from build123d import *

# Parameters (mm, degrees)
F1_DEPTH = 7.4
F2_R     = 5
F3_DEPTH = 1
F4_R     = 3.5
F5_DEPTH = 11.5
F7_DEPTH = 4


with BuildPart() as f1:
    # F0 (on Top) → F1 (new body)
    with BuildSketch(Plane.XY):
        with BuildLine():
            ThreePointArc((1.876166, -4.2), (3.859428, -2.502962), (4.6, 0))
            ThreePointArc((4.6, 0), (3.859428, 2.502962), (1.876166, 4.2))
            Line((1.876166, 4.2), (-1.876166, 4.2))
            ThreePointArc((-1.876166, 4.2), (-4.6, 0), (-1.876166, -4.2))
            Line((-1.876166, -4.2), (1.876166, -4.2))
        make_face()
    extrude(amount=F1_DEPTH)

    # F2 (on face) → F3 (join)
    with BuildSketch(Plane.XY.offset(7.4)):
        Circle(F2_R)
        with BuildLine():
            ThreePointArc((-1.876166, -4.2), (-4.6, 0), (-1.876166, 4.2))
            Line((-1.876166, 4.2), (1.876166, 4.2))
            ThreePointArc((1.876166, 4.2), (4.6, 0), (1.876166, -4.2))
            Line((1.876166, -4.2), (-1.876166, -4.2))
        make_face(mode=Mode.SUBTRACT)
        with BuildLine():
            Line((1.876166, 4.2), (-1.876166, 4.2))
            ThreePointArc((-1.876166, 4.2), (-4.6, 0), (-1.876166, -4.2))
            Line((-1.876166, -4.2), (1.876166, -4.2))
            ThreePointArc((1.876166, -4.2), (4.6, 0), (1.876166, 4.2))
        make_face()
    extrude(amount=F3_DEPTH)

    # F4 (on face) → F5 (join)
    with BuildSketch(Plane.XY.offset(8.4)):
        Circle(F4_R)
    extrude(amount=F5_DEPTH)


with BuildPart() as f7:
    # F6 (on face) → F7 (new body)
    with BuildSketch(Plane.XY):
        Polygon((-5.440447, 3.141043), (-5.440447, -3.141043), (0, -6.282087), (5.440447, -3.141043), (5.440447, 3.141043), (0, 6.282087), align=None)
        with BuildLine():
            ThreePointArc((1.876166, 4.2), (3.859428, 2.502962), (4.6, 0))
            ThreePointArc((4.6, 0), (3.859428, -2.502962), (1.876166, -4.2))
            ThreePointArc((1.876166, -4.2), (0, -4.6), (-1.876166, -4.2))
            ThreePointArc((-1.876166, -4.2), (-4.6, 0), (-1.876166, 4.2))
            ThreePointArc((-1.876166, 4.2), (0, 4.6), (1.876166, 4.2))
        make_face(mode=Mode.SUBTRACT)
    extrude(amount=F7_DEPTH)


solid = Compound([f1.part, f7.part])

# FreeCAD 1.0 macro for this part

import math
import FreeCAD as App
import Part
import Sketcher
Q = App.Units.Quantity

doc = App.newDocument("Part")
body = doc.addObject("PartDesign::Body", "Body")

sketch1 = doc.addObject("Sketcher::SketchObject", "Sketch")
body.addObject(sketch1)
sketch1.AttachmentSupport = (doc.XY_Plane, [""])
sketch1.MapMode = "FlatFace"
sketch1.addGeometry(Part.ArcOfCircle(Part.Circle(App.Vector(0, 0, 0), App.Vector(0, 0, 1), 4.6), math.radians(-66), math.radians(0)), False)
sketch1.addGeometry(Part.ArcOfCircle(Part.Circle(App.Vector(0, 0, 0), App.Vector(0, 0, 1), 4.6), math.radians(0), math.radians(66)), False)
sketch1.addGeometry(Part.LineSegment(App.Vector(1.9, 4.2, 0), App.Vector(-1.9, 4.2, 0)), False)
sketch1.addGeometry(Part.ArcOfCircle(Part.Circle(App.Vector(0, 0, 0), App.Vector(0, 0, 1), 4.6), math.radians(114), math.radians(246)), False)
sketch1.addGeometry(Part.LineSegment(App.Vector(-1.9, -4.2, 0), App.Vector(1.9, -4.2, 0)), False)
sketch1.addConstraint(Sketcher.Constraint("Tangent", 0, 2, 1, 1))
sketch1.addConstraint(Sketcher.Constraint("Coincident", 1, 2, 2, 1))
sketch1.addConstraint(Sketcher.Constraint("Coincident", 2, 2, 3, 1))
sketch1.addConstraint(Sketcher.Constraint("Coincident", 3, 2, 4, 1))
sketch1.addConstraint(Sketcher.Constraint("Coincident", 4, 2, 0, 1))
sketch1.addConstraint(Sketcher.Constraint("Horizontal", 2))
sketch1.addConstraint(Sketcher.Constraint("Horizontal", 4))
sketch1.addConstraint(Sketcher.Constraint("Coincident", 0, 3, -1, 1))
sketch1.addConstraint(Sketcher.Constraint("Coincident", 3, 3, -1, 1))
sketch1.addConstraint(Sketcher.Constraint("Equal", 0, 1))
sketch1.addConstraint(Sketcher.Constraint("Symmetric", 1, 2, 3, 2, -1, 1))
sketch1.addConstraint(Sketcher.Constraint("PointOnObject", 0, 2, -1))
sketch1.addConstraint(Sketcher.Constraint("Radius", 3, Q("4.6 mm")))
sketch1.addConstraint(Sketcher.Constraint("DistanceY", -1, 1, 1, 2, Q("4.2 mm")))
pad1 = doc.addObject("PartDesign::Pad", "Pad")
body.addObject(pad1)
pad1.Profile = sketch1
pad1.Length = 7.4

sketch2 = doc.addObject("Sketcher::SketchObject", "Sketch001")
body.addObject(sketch2)
sketch2.AttachmentSupport = (doc.XY_Plane, [""])
sketch2.MapMode = "FlatFace"
sketch2.AttachmentOffset = App.Placement(App.Vector(0, 0, 7.4), App.Rotation())
sketch2.addGeometry(Part.Circle(App.Vector(0, 0, 0), App.Vector(0, 0, 1), 5), False)
sketch2.addConstraint(Sketcher.Constraint("Coincident", 0, 3, -1, 1))
sketch2.addConstraint(Sketcher.Constraint("Diameter", 0, Q("10 mm")))
pad2 = doc.addObject("PartDesign::Pad", "Pad001")
body.addObject(pad2)
pad2.Profile = sketch2
pad2.Length = 1

sketch3 = doc.addObject("Sketcher::SketchObject", "Sketch002")
body.addObject(sketch3)
sketch3.AttachmentSupport = (doc.XY_Plane, [""])
sketch3.MapMode = "FlatFace"
sketch3.AttachmentOffset = App.Placement(App.Vector(0, 0, 8.4), App.Rotation())
sketch3.addGeometry(Part.Circle(App.Vector(0, 0, 0), App.Vector(0, 0, 1), 3.5), False)
sketch3.addConstraint(Sketcher.Constraint("Coincident", 0, 3, -1, 1))
sketch3.addConstraint(Sketcher.Constraint("Diameter", 0, Q("7 mm")))
pad3 = doc.addObject("PartDesign::Pad", "Pad002")
body.addObject(pad3)
pad3.Profile = sketch3
pad3.Length = 11.5
body2 = doc.addObject("PartDesign::Body", "Body001")

sketch4 = doc.addObject("Sketcher::SketchObject", "Sketch003")
body2.addObject(sketch4)
sketch4.AttachmentSupport = (doc.getObject("XY_Plane001"), [""])
sketch4.MapMode = "FlatFace"
sketch4.addGeometry(Part.LineSegment(App.Vector(-5.4, 3.1, 0), App.Vector(-5.4, -3.1, 0)), False)
sketch4.addGeometry(Part.LineSegment(App.Vector(-5.4, -3.1, 0), App.Vector(0, -6.3, 0)), False)
sketch4.addGeometry(Part.LineSegment(App.Vector(0, -6.3, 0), App.Vector(5.4, -3.1, 0)), False)
sketch4.addGeometry(Part.LineSegment(App.Vector(5.4, -3.1, 0), App.Vector(5.4, 3.1, 0)), False)
sketch4.addGeometry(Part.LineSegment(App.Vector(5.4, 3.1, 0), App.Vector(0, 6.3, 0)), False)
sketch4.addGeometry(Part.LineSegment(App.Vector(0, 6.3, 0), App.Vector(-5.4, 3.1, 0)), False)
sketch4.addGeometry(Part.ArcOfCircle(Part.Circle(App.Vector(0, 0, 0), App.Vector(0, 0, 1), 4.6), math.radians(66), math.radians(114)), False)
sketch4.addGeometry(Part.ArcOfCircle(Part.Circle(App.Vector(0, 0, 0), App.Vector(0, 0, 1), 4.6), math.radians(0), math.radians(66)), False)
sketch4.addGeometry(Part.ArcOfCircle(Part.Circle(App.Vector(0, 0, 0), App.Vector(0, 0, 1), 4.6), math.radians(-66), math.radians(0)), False)
sketch4.addGeometry(Part.ArcOfCircle(Part.Circle(App.Vector(0, 0, 0), App.Vector(0, 0, 1), 4.6), math.radians(-114), math.radians(-66)), False)
sketch4.addGeometry(Part.ArcOfCircle(Part.Circle(App.Vector(0, 0, 0), App.Vector(0, 0, 1), 4.6), math.radians(114), math.radians(246)), False)
sketch4.addConstraint(Sketcher.Constraint("Coincident", 0, 2, 1, 1))
sketch4.addConstraint(Sketcher.Constraint("Coincident", 1, 2, 2, 1))
sketch4.addConstraint(Sketcher.Constraint("Coincident", 2, 2, 3, 1))
sketch4.addConstraint(Sketcher.Constraint("Coincident", 3, 2, 4, 1))
sketch4.addConstraint(Sketcher.Constraint("Coincident", 4, 2, 5, 1))
sketch4.addConstraint(Sketcher.Constraint("Coincident", 5, 2, 0, 1))
sketch4.addConstraint(Sketcher.Constraint("Tangent", 6, 1, 7, 2))
sketch4.addConstraint(Sketcher.Constraint("Tangent", 7, 1, 8, 2))
sketch4.addConstraint(Sketcher.Constraint("Tangent", 8, 1, 9, 2))
sketch4.addConstraint(Sketcher.Constraint("Tangent", 9, 1, 10, 2))
sketch4.addConstraint(Sketcher.Constraint("Tangent", 10, 1, 6, 2))
sketch4.addConstraint(Sketcher.Constraint("Vertical", 0))
sketch4.addConstraint(Sketcher.Constraint("Vertical", 3))
sketch4.addConstraint(Sketcher.Constraint("Coincident", 6, 3, -1, 1))
sketch4.addConstraint(Sketcher.Constraint("Coincident", 8, 3, -1, 1))
sketch4.addConstraint(Sketcher.Constraint("Symmetric", 0, 2, 3, 2, -1, 1))
sketch4.addConstraint(Sketcher.Constraint("Symmetric", 1, 2, 4, 2, -1, 1))
sketch4.addConstraint(Sketcher.Constraint("PointOnObject", 1, 2, -2))
sketch4.addConstraint(Sketcher.Constraint("PointOnObject", 7, 1, -1))
sketch4.addConstraint(Sketcher.Constraint("Parallel", 2, 5))
sketch4.addConstraint(Sketcher.Constraint("Horizontal", 0, 2, 2, 2))
sketch4.addConstraint(Sketcher.Constraint("Horizontal", 8, 1, 9, 1))
sketch4.addConstraint(Sketcher.Constraint("Horizontal", 6, 1, 10, 1))
sketch4.addConstraint(Sketcher.Constraint("Vertical", 6, 1, 8, 1))
sketch4.addConstraint(Sketcher.Constraint("Radius", 6, Q("4.599999 mm")))
sketch4.addConstraint(Sketcher.Constraint("Angle", 1, Q("-30.000004 deg")))
sketch4.addConstraint(Sketcher.Constraint("DistanceY", -1, 1, 6, 1, Q("4.2 mm")))
sketch4.addConstraint(Sketcher.Constraint("DistanceY", 0, 2, 0, 1, Q("6.282086 mm")))
sketch4.addConstraint(Sketcher.Constraint("DistanceX", 0, 2, 8, 3, Q("5.440449 mm")))
pad4 = doc.addObject("PartDesign::Pad", "Pad003")
body2.addObject(pad4)
pad4.Profile = sketch4
pad4.Length = 4

doc.recompute()
